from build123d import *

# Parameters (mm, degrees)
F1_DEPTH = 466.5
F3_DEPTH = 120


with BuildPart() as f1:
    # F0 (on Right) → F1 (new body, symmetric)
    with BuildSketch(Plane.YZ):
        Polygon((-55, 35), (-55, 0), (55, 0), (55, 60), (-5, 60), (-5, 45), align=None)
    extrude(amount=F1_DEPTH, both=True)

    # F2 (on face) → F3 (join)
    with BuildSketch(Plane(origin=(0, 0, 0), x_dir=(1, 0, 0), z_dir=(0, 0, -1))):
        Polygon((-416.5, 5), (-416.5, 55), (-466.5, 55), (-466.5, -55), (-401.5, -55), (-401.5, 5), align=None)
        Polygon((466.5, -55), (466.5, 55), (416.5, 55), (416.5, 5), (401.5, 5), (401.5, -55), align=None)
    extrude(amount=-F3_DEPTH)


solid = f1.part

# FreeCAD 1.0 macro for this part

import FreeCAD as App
import Part
import Sketcher

V = App.Vector
Q = App.Units.Quantity

doc = App.newDocument("Part")
params = doc.addObject("Spreadsheet::Sheet", "Params")
for row, (alias, value) in enumerate([
    ("sketch1_width", "110 mm"),
    ("sketch1_width2", "60 mm"),
    ("sketch1_height", "35 mm"),
    ("sketch1_height2", "15 mm"),
    ("pad1_length", "933 mm"),
    ("sketch2_width", "50 mm"),
    ("sketch2_width2", "65 mm"),
    ("sketch2_height", "110 mm"),
    ("pad2_length", "120 mm"),
], start=1):
    params.set(f"A{row}", alias)
    params.set(f"B{row}", "=" + value)
    params.setAlias(f"B{row}", alias)

body = doc.addObject("PartDesign::Body", "Body")

sketch1 = body.newObject("Sketcher::SketchObject", "Sketch")
sketch1.AttachmentSupport = (doc.getObject("YZ_Plane"), [""])
sketch1.MapMode = "FlatFace"
sketch1.addGeometry(Part.LineSegment(V(-55, 35, 0), V(-55, 0, 0)), False)
sketch1.addGeometry(Part.LineSegment(V(-55, 0, 0), V(55, 0, 0)), False)
sketch1.addGeometry(Part.LineSegment(V(55, 0, 0), V(55, 60, 0)), False)
sketch1.addGeometry(Part.LineSegment(V(55, 60, 0), V(-5, 60, 0)), False)
sketch1.addGeometry(Part.LineSegment(V(-5, 60, 0), V(-5, 45, 0)), False)
sketch1.addGeometry(Part.LineSegment(V(-5, 45, 0), V(-55, 35, 0)), False)
sketch1.addConstraint(Sketcher.Constraint("Coincident", 0, 2, 1, 1))
sketch1.addConstraint(Sketcher.Constraint("Coincident", 1, 2, 2, 1))
sketch1.addConstraint(Sketcher.Constraint("Coincident", 2, 2, 3, 1))
sketch1.addConstraint(Sketcher.Constraint("Coincident", 3, 2, 4, 1))
sketch1.addConstraint(Sketcher.Constraint("Coincident", 4, 2, 5, 1))
sketch1.addConstraint(Sketcher.Constraint("Coincident", 5, 2, 0, 1))
sketch1.addConstraint(Sketcher.Constraint("Vertical", 0))
sketch1.addConstraint(Sketcher.Constraint("Horizontal", 1))
sketch1.addConstraint(Sketcher.Constraint("Vertical", 2))
sketch1.addConstraint(Sketcher.Constraint("Horizontal", 3))
sketch1.addConstraint(Sketcher.Constraint("Vertical", 4))
sketch1.addConstraint(Sketcher.Constraint("Symmetric", 0, 2, 1, 2, -1, 1))
sketch1.addConstraint(Sketcher.Constraint("Equal", 3, 2))
sketch1.addConstraint(Sketcher.Constraint("DistanceX", 1, 1, 1, 2, Q("110 mm")))
sketch1.addConstraint(Sketcher.Constraint("DistanceX", 3, 2, 3, 1, Q("60 mm")))
sketch1.addConstraint(Sketcher.Constraint("DistanceY", 0, 2, 0, 1, Q("35 mm")))
sketch1.addConstraint(Sketcher.Constraint("DistanceY", 4, 2, 4, 1, Q("15 mm")))
sketch1.setExpression("Constraints[13]", "Params.sketch1_width")
sketch1.setExpression("Constraints[14]", "Params.sketch1_width2")
sketch1.setExpression("Constraints[15]", "Params.sketch1_height")
sketch1.setExpression("Constraints[16]", "Params.sketch1_height2")
pad1 = body.newObject("PartDesign::Pad", "Pad")
pad1.Profile = sketch1
pad1.setExpression("Length", "Params.pad1_length")
pad1.Midplane = True

sketch2 = body.newObject("Sketcher::SketchObject", "Sketch001")
sketch2.AttachmentSupport = (doc.getObject("XY_Plane"), [""])
sketch2.MapMode = "FlatFace"
sketch2.addGeometry(Part.LineSegment(V(-416, -5, 0), V(-416, -55, 0)), False)
sketch2.addGeometry(Part.LineSegment(V(-416, -55, 0), V(-466, -55, 0)), False)
sketch2.addGeometry(Part.LineSegment(V(-466, -55, 0), V(-466, 55, 0)), False)
sketch2.addGeometry(Part.LineSegment(V(-466, 55, 0), V(-402, 55, 0)), False)
sketch2.addGeometry(Part.LineSegment(V(-402, 55, 0), V(-402, -5, 0)), False)
sketch2.addGeometry(Part.LineSegment(V(-402, -5, 0), V(-416, -5, 0)), False)
sketch2.addGeometry(Part.LineSegment(V(466, 55, 0), V(466, -55, 0)), False)
sketch2.addGeometry(Part.LineSegment(V(466, -55, 0), V(416, -55, 0)), False)
sketch2.addGeometry(Part.LineSegment(V(416, -55, 0), V(416, -5, 0)), False)
sketch2.addGeometry(Part.LineSegment(V(416, -5, 0), V(402, -5, 0)), False)
sketch2.addGeometry(Part.LineSegment(V(402, -5, 0), V(402, 55, 0)), False)
sketch2.addGeometry(Part.LineSegment(V(402, 55, 0), V(466, 55, 0)), False)
sketch2.addConstraint(Sketcher.Constraint("Coincident", 0, 2, 1, 1))
sketch2.addConstraint(Sketcher.Constraint("Coincident", 1, 2, 2, 1))
sketch2.addConstraint(Sketcher.Constraint("Coincident", 2, 2, 3, 1))
sketch2.addConstraint(Sketcher.Constraint("Coincident", 3, 2, 4, 1))
sketch2.addConstraint(Sketcher.Constraint("Coincident", 4, 2, 5, 1))
sketch2.addConstraint(Sketcher.Constraint("Coincident", 5, 2, 0, 1))
sketch2.addConstraint(Sketcher.Constraint("Coincident", 6, 2, 7, 1))
sketch2.addConstraint(Sketcher.Constraint("Coincident", 7, 2, 8, 1))
sketch2.addConstraint(Sketcher.Constraint("Coincident", 8, 2, 9, 1))
sketch2.addConstraint(Sketcher.Constraint("Coincident", 9, 2, 10, 1))
sketch2.addConstraint(Sketcher.Constraint("Coincident", 10, 2, 11, 1))
sketch2.addConstraint(Sketcher.Constraint("Coincident", 11, 2, 6, 1))
sketch2.addConstraint(Sketcher.Constraint("Vertical", 0))
sketch2.addConstraint(Sketcher.Constraint("Horizontal", 1))
sketch2.addConstraint(Sketcher.Constraint("Vertical", 2))
sketch2.addConstraint(Sketcher.Constraint("Horizontal", 3))
sketch2.addConstraint(Sketcher.Constraint("Vertical", 4))
sketch2.addConstraint(Sketcher.Constraint("Horizontal", 5))
sketch2.addConstraint(Sketcher.Constraint("Vertical", 6))
sketch2.addConstraint(Sketcher.Constraint("Horizontal", 7))
sketch2.addConstraint(Sketcher.Constraint("Vertical", 8))
sketch2.addConstraint(Sketcher.Constraint("Horizontal", 9))
sketch2.addConstraint(Sketcher.Constraint("Vertical", 10))
sketch2.addConstraint(Sketcher.Constraint("Horizontal", 11))
sketch2.addConstraint(Sketcher.Constraint("Symmetric", 2, 2, 6, 2, -1, 1))
sketch2.addConstraint(Sketcher.Constraint("Symmetric", 0, 2, 7, 2, -2))
sketch2.addConstraint(Sketcher.Constraint("Symmetric", 4, 2, 9, 2, -2))
sketch2.addConstraint(Sketcher.Constraint("Horizontal", 3, 2, 10, 2))
sketch2.addConstraint(Sketcher.Constraint("Equal", 7, 0))
sketch2.addConstraint(Sketcher.Constraint("DistanceX", 1, 2, 1, 1, Q("50 mm")))
sketch2.addConstraint(Sketcher.Constraint("DistanceX", 3, 1, 3, 2, Q("65 mm")))
sketch2.addConstraint(Sketcher.Constraint("DistanceY", 2, 1, 2, 2, Q("110 mm")))
sketch2.addConstraint(Sketcher.Constraint("DistanceX", 4, 2, 6, 2, Q("868 mm")))
sketch2.setExpression("Constraints[29]", "Params.sketch2_width")
sketch2.setExpression("Constraints[30]", "Params.sketch2_width2")
sketch2.setExpression("Constraints[31]", "Params.sketch2_height")
pad2 = body.newObject("PartDesign::Pad", "Pad001")
pad2.Profile = sketch2
pad2.setExpression("Length", "Params.pad2_length")

doc.recompute()
